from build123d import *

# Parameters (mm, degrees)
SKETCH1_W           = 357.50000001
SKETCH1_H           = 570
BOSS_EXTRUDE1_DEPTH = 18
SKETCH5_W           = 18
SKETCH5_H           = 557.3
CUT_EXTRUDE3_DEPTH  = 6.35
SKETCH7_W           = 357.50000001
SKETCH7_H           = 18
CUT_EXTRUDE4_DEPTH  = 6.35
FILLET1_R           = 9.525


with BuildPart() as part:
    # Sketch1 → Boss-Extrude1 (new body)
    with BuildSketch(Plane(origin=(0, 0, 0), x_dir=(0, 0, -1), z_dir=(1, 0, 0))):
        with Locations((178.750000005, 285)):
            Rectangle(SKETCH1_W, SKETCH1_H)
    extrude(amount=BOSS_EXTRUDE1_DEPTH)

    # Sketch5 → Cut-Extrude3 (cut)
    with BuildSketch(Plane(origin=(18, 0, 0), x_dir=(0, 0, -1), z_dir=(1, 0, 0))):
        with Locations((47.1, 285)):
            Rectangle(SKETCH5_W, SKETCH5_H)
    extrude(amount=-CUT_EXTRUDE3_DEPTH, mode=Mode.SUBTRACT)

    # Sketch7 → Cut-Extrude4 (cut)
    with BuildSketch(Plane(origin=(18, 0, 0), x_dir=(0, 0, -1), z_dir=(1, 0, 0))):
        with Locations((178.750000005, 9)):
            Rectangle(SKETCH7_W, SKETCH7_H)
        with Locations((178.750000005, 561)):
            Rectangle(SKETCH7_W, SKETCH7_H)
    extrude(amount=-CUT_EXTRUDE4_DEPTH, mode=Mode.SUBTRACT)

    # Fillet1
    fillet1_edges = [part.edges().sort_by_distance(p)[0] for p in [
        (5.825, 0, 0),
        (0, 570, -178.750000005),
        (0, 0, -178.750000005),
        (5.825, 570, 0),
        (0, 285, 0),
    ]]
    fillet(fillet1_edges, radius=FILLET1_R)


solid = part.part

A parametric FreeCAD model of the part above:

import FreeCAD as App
import Part
import Sketcher
from FreeCAD import Vector


def edges_at(feature, points):
    """Names of the edges that pass closest to the given points."""
    edges = feature.Shape.Edges
    near = lambda p: min(range(len(edges)), key=lambda i: edges[i].distToShape(Part.Vertex(*p))[0])
    return sorted({f"Edge{near(p) + 1}" for p in points})


def add_polygon(sketch, points):
    """Adds a closed chain of lines whose ends are joined by coincident constraints."""
    first, n = sketch.GeometryCount, len(points)
    for a, b in zip(points, points[1:] + points[:1]):
        sketch.addGeometry(Part.LineSegment(App.Vector(*a, 0), App.Vector(*b, 0)), False)
    for i in range(n):
        sketch.addConstraint(Sketcher.Constraint("Coincident", first + i, 2, first + (i + 1) % n, 1))

doc = App.newDocument("Part")
body = doc.addObject("PartDesign::Body", "Body")

# Sketch on YZ plane
sketch1 = body.newObject("Sketcher::SketchObject", "Sketch")
sketch1.AttachmentSupport = (doc.getObject("YZ_Plane"), [""])
sketch1.MapMode = "FlatFace"
add_polygon(sketch1, [(570, 0), (0, 0), (0, -358), (570, -358)])  # lines 0-3
sketch1.addConstraint(Sketcher.Constraint("Horizontal", 0))
sketch1.addConstraint(Sketcher.Constraint("Vertical", 1))
sketch1.addConstraint(Sketcher.Constraint("Horizontal", 2))
sketch1.addConstraint(Sketcher.Constraint("Vertical", 3))
sketch1.addConstraint(Sketcher.Constraint("Coincident", 0, 2, -1, 1))
sketch1.addConstraint(Sketcher.Constraint("DistanceX", 0, 2, 0, 1, 570.0))
sketch1.addConstraint(Sketcher.Constraint("DistanceY", 1, 2, 1, 1, 357.5))
pad1 = body.newObject("PartDesign::Pad", "Pad")
pad1.Profile = sketch1
pad1.Length = 18

# Sketch on YZ plane
sketch2 = body.newObject("Sketcher::SketchObject", "Sketch001")
sketch2.AttachmentSupport = (doc.getObject("YZ_Plane"), [""])
sketch2.MapMode = "FlatFace"
sketch2.AttachmentOffset = App.Placement(Vector(0, 0, 18), App.Rotation())
add_polygon(sketch2, [(564, -38), (6, -38), (6, -56), (564, -56)])  # lines 0-3
sketch2.addConstraint(Sketcher.Constraint("Horizontal", 0))
sketch2.addConstraint(Sketcher.Constraint("Vertical", 1))
sketch2.addConstraint(Sketcher.Constraint("Horizontal", 2))
sketch2.addConstraint(Sketcher.Constraint("Vertical", 3))
sketch2.addConstraint(Sketcher.Constraint("DistanceY", 1, 2, 1, 1, 18.0))
sketch2.addConstraint(Sketcher.Constraint("DistanceX", 0, 2, 0, 1, 557.3))
sketch2.addConstraint(Sketcher.Constraint("DistanceY", 0, 2, -1, 1, 38.1))
sketch2.addConstraint(Sketcher.Constraint("DistanceX", -1, 1, 0, 2, 6.35))
pocket1 = body.newObject("PartDesign::Pocket", "Pocket")
pocket1.Profile = sketch2
pocket1.Length = 6.35

# Sketch on YZ plane
sketch3 = body.newObject("Sketcher::SketchObject", "Sketch002")
sketch3.AttachmentSupport = (doc.getObject("YZ_Plane"), [""])
sketch3.MapMode = "FlatFace"
sketch3.AttachmentOffset = App.Placement(Vector(0, 0, 18), App.Rotation())
add_polygon(sketch3, [(18, 0), (0, 0), (0, -358), (18, -358)])  # lines 0-3
add_polygon(sketch3, [(570, 0), (552, 0), (552, -358), (570, -358)])  # lines 4-7
sketch3.addConstraint(Sketcher.Constraint("Horizontal", 0))
sketch3.addConstraint(Sketcher.Constraint("Vertical", 1))
sketch3.addConstraint(Sketcher.Constraint("Horizontal", 2))
sketch3.addConstraint(Sketcher.Constraint("Vertical", 3))
sketch3.addConstraint(Sketcher.Constraint("Horizontal", 4))
sketch3.addConstraint(Sketcher.Constraint("Vertical", 5))
sketch3.addConstraint(Sketcher.Constraint("Horizontal", 6))
sketch3.addConstraint(Sketcher.Constraint("Vertical", 7))
sketch3.addConstraint(Sketcher.Constraint("Coincident", 0, 2, -1, 1))
sketch3.addConstraint(Sketcher.Constraint("PointOnObject", 4, 2, -1))
sketch3.addConstraint(Sketcher.Constraint("Horizontal", 2, 2, 5, 2))
sketch3.addConstraint(Sketcher.Constraint("Equal", 2, 4))
sketch3.addConstraint(Sketcher.Constraint("DistanceX", 0, 2, 0, 1, 18.0))
sketch3.addConstraint(Sketcher.Constraint("DistanceY", 1, 2, 1, 1, 357.5))
sketch3.addConstraint(Sketcher.Constraint("DistanceX", -1, 1, 4, 2, 552.0))
pocket2 = body.newObject("PartDesign::Pocket", "Pocket001")
pocket2.Profile = sketch3
pocket2.Length = 6.35
doc.recompute()

fillet = body.newObject("PartDesign::Fillet", "Fillet")
fillet.Base = (pocket2, edges_at(pocket2, [
    (5.825, 0, 0),
    (0, 570, -178.75),
    (0, 0, -178.75),
    (5.825, 570, 0),
    (0, 285, 0),
]))
fillet.Radius = 9.525

doc.recompute()
